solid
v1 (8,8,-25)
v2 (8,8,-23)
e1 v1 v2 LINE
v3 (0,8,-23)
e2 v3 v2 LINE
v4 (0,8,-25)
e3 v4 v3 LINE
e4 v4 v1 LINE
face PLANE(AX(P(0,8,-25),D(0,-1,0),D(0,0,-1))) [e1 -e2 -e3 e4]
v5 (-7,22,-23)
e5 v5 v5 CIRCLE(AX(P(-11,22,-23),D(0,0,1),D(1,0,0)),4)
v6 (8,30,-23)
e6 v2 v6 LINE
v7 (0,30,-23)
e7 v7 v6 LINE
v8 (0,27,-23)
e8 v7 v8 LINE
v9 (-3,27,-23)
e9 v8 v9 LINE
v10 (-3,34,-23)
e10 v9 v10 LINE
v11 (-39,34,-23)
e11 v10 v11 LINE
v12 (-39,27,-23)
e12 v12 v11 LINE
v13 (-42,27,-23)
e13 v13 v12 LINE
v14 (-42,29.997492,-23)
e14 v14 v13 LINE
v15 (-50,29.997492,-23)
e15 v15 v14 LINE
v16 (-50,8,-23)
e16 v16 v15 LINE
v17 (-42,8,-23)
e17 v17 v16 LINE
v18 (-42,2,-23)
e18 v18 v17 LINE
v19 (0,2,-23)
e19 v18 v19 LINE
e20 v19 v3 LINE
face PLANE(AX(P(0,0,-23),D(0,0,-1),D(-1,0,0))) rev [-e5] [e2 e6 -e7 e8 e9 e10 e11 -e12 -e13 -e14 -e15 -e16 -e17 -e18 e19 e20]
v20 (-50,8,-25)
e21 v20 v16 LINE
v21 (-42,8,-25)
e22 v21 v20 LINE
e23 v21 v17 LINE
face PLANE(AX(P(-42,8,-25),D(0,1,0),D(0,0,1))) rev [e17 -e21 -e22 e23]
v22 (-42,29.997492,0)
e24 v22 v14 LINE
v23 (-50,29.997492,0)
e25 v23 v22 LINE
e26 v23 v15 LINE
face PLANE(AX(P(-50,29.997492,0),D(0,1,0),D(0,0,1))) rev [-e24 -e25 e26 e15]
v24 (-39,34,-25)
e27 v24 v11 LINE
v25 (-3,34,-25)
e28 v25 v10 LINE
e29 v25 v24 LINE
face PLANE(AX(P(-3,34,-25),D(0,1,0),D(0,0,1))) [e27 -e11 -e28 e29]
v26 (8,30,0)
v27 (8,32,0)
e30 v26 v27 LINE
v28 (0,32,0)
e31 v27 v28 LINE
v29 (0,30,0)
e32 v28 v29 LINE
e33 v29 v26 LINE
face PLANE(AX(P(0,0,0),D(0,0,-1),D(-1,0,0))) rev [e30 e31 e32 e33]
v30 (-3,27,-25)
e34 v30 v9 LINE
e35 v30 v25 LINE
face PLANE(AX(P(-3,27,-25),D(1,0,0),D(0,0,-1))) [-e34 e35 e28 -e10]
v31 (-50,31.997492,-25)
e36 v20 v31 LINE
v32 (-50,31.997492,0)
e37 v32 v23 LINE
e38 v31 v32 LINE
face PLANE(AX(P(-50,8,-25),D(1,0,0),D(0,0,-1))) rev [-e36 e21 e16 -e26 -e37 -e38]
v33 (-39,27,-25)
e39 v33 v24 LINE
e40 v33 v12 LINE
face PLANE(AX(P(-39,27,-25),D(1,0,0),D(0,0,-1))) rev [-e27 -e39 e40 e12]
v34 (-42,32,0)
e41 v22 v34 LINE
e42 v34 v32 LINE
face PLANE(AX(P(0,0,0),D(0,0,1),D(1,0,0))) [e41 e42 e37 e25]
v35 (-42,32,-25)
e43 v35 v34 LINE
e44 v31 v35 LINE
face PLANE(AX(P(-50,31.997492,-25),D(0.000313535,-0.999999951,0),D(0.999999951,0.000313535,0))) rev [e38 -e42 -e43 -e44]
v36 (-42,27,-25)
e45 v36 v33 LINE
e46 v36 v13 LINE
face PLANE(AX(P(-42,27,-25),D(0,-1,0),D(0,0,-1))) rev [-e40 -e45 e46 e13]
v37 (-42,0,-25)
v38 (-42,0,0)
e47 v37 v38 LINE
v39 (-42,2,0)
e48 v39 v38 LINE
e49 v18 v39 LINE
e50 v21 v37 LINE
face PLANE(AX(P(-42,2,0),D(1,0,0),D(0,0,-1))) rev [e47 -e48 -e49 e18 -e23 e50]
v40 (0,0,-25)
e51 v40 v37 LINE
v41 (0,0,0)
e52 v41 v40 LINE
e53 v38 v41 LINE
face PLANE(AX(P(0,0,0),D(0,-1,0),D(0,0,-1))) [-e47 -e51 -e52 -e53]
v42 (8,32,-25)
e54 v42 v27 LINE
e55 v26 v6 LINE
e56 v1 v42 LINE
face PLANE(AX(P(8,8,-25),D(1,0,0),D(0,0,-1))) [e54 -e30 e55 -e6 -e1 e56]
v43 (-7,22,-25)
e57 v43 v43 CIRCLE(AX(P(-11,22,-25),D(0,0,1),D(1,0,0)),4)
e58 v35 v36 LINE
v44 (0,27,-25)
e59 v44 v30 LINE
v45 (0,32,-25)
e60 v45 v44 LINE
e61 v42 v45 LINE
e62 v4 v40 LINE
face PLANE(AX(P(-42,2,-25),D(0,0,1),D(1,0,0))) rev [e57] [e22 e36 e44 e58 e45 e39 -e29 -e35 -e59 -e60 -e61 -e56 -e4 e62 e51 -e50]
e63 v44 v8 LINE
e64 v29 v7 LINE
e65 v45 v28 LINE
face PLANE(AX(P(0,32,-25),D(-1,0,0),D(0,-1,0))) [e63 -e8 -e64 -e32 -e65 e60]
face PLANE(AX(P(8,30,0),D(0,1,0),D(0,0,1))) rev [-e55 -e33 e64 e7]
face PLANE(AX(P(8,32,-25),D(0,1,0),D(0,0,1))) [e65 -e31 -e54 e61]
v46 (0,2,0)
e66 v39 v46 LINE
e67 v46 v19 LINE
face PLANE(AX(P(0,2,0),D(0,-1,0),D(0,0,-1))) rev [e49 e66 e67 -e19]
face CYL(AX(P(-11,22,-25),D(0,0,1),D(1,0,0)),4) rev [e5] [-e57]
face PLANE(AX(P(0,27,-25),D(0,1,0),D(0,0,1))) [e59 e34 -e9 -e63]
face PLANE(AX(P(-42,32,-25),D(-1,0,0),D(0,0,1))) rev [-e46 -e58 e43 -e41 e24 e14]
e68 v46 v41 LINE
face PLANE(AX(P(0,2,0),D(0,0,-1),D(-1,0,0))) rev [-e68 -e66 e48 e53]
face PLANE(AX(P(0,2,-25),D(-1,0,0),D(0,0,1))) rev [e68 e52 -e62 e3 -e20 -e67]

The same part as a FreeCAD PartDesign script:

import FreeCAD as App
import Part
import Sketcher


def add_polygon(sketch, points):
    """Adds a closed chain of lines whose ends are joined by coincident constraints."""
    first, n = sketch.GeometryCount, len(points)
    for a, b in zip(points, points[1:] + points[:1]):
        sketch.addGeometry(Part.LineSegment(App.Vector(*a, 0), App.Vector(*b, 0)), False)
    for i in range(n):
        sketch.addConstraint(Sketcher.Constraint("Coincident", first + i, 2, first + (i + 1) % n, 1))

doc = App.newDocument("Part")
body = doc.addObject("PartDesign::Body", "Body")

# Sketch on XZ plane
sketch1 = body.newObject("Sketcher::SketchObject", "Sketch")
sketch1.AttachmentSupport = (doc.getObject("XZ_Plane"), [""])
sketch1.MapMode = "FlatFace"
add_polygon(sketch1, [(-42, -25), (-42, 0), (0, 0), (0, -25)])  # lines 0-3
sketch1.addConstraint(Sketcher.Constraint("Vertical", 0))
sketch1.addConstraint(Sketcher.Constraint("Horizontal", 1))
sketch1.addConstraint(Sketcher.Constraint("Vertical", 2))
sketch1.addConstraint(Sketcher.Constraint("Horizontal", 3))
sketch1.addConstraint(Sketcher.Constraint("Coincident", 1, 2, -1, 1))
sketch1.addConstraint(Sketcher.Constraint("DistanceX", 1, 1, 1, 2, 42.0))
sketch1.addConstraint(Sketcher.Constraint("DistanceY", 0, 1, 0, 2, 25.0))
pad1 = body.newObject("PartDesign::Pad", "Pad")
pad1.Profile = sketch1
pad1.Length = 2
pad1.Reversed = True

# Sketch on XY plane
sketch2 = body.newObject("Sketcher::SketchObject", "Sketch001")
sketch2.AttachmentSupport = (doc.getObject("XY_Plane"), [""])
sketch2.MapMode = "FlatFace"
sketch2.AttachmentOffset = App.Placement(App.Vector(0, 0, -25), App.Rotation())
add_polygon(sketch2, [(0, 8), (0, 2), (-42, 2), (-42, 8), (-50, 8), (-50, 32), (-42, 32), (-42, 27), (-39, 27), (-39, 34), (-3, 34), (-3, 27), (0, 27), (0, 32), (8, 32), (8, 8)])  # lines 0-15
sketch2.addConstraint(Sketcher.Constraint("Vertical", 0))
sketch2.addConstraint(Sketcher.Constraint("Horizontal", 1))
sketch2.addConstraint(Sketcher.Constraint("Vertical", 2))
sketch2.addConstraint(Sketcher.Constraint("Horizontal", 3))
sketch2.addConstraint(Sketcher.Constraint("Vertical", 4))
sketch2.addConstraint(Sketcher.Constraint("Vertical", 6))
sketch2.addConstraint(Sketcher.Constraint("Horizontal", 7))
sketch2.addConstraint(Sketcher.Constraint("Vertical", 8))
sketch2.addConstraint(Sketcher.Constraint("Horizontal", 9))
sketch2.addConstraint(Sketcher.Constraint("Vertical", 10))
sketch2.addConstraint(Sketcher.Constraint("Horizontal", 11))
sketch2.addConstraint(Sketcher.Constraint("Vertical", 12))
sketch2.addConstraint(Sketcher.Constraint("Horizontal", 13))
sketch2.addConstraint(Sketcher.Constraint("Vertical", 14))
sketch2.addConstraint(Sketcher.Constraint("Horizontal", 15))
sketch2.addConstraint(Sketcher.Constraint("PointOnObject", 0, 2, -2))
sketch2.addConstraint(Sketcher.Constraint("PointOnObject", 11, 2, -2))
sketch2.addConstraint(Sketcher.Constraint("Horizontal", 7, 2, 10, 2))
sketch2.addConstraint(Sketcher.Constraint("Horizontal", 5, 2, 12, 2))
sketch2.addConstraint(Sketcher.Constraint("Horizontal", 3, 2, 14, 2))
sketch2.addConstraint(Sketcher.Constraint("Vertical", 2, 2, 5, 2))
sketch2.addConstraint(Sketcher.Constraint("Equal", 7, 11))
sketch2.addConstraint(Sketcher.Constraint("Equal", 3, 13))
sketch2.addConstraint(Sketcher.Constraint("DistanceX", 1, 2, 1, 1, 42.0))
sketch2.addConstraint(Sketcher.Constraint("DistanceX", 3, 2, 3, 1, 8.0))
sketch2.addConstraint(Sketcher.Constraint("DistanceX", 7, 1, 7, 2, 3.0))
sketch2.addConstraint(Sketcher.Constraint("DistanceY", 0, 2, 0, 1, 6.0))
sketch2.addConstraint(Sketcher.Constraint("DistanceY", 6, 2, 6, 1, 5.0))
sketch2.addConstraint(Sketcher.Constraint("DistanceY", 8, 1, 8, 2, 7.0))
sketch2.addConstraint(Sketcher.Constraint("DistanceY", 14, 2, 14, 1, 24.0))
sketch2.addConstraint(Sketcher.Constraint("DistanceY", -1, 1, 0, 2, 2.0))
sketch2.addConstraint(Sketcher.Constraint("DistanceY", 4, 1, 4, 2, 23.997492))
pad2 = body.newObject("PartDesign::Pad", "Pad001")
pad2.Profile = sketch2
pad2.Length = 2

# Sketch on XY plane
sketch3 = body.newObject("Sketcher::SketchObject", "Sketch002")
sketch3.AttachmentSupport = (doc.getObject("XY_Plane"), [""])
sketch3.MapMode = "FlatFace"
sketch3.AttachmentOffset = App.Placement(App.Vector(0, 0, -23), App.Rotation())
sketch3.addGeometry(Part.Circle(App.Vector(-11, 22, 0), App.Vector(0, 0, 1), 4), False)
sketch3.addConstraint(Sketcher.Constraint("Diameter", 0, 8.0))
sketch3.addConstraint(Sketcher.Constraint("DistanceX", 0, 3, -1, 1, 11.0))
sketch3.addConstraint(Sketcher.Constraint("DistanceY", -1, 1, 0, 3, 22.0))
pocket1 = body.newObject("PartDesign::Pocket", "Pocket")
pocket1.Profile = sketch3
pocket1.Length = 2

# Sketch on XY plane
sketch4 = body.newObject("Sketcher::SketchObject", "Sketch003")
sketch4.AttachmentSupport = (doc.getObject("XY_Plane"), [""])
sketch4.MapMode = "FlatFace"
sketch4.AttachmentOffset = App.Placement(App.Vector(0, 0, -23), App.Rotation())
add_polygon(sketch4, [(-50, 32), (-50, 30), (-42, 30), (-42, 32)])  # lines 0-3
add_polygon(sketch4, [(0, 32), (0, 30), (8, 30), (8, 32)])  # lines 4-7
sketch4.addConstraint(Sketcher.Constraint("Vertical", 0))
sketch4.addConstraint(Sketcher.Constraint("Horizontal", 1))
sketch4.addConstraint(Sketcher.Constraint("Vertical", 2))
sketch4.addConstraint(Sketcher.Constraint("Vertical", 4))
sketch4.addConstraint(Sketcher.Constraint("Horizontal", 5))
sketch4.addConstraint(Sketcher.Constraint("Vertical", 6))
sketch4.addConstraint(Sketcher.Constraint("Horizontal", 7))
sketch4.addConstraint(Sketcher.Constraint("PointOnObject", 4, 2, -2))
sketch4.addConstraint(Sketcher.Constraint("Horizontal", 2, 2, 6, 2))
sketch4.addConstraint(Sketcher.Constraint("Equal", 1, 5))
sketch4.addConstraint(Sketcher.Constraint("Equal", 0, 4))
sketch4.addConstraint(Sketcher.Constraint("DistanceX", 1, 1, 1, 2, 8.0))
sketch4.addConstraint(Sketcher.Constraint("DistanceY", 0, 2, 0, 1, 2.0))
sketch4.addConstraint(Sketcher.Constraint("DistanceX", 0, 2, -1, 1, 50.0))
sketch4.addConstraint(Sketcher.Constraint("DistanceY", -1, 1, 2, 2, 32.0))
sketch4.addConstraint(Sketcher.Constraint("DistanceY", 2, 1, 2, 2, 2.002508))
pad3 = body.newObject("PartDesign::Pad", "Pad002")
pad3.Profile = sketch4
pad3.Length = 23

doc.recompute()
